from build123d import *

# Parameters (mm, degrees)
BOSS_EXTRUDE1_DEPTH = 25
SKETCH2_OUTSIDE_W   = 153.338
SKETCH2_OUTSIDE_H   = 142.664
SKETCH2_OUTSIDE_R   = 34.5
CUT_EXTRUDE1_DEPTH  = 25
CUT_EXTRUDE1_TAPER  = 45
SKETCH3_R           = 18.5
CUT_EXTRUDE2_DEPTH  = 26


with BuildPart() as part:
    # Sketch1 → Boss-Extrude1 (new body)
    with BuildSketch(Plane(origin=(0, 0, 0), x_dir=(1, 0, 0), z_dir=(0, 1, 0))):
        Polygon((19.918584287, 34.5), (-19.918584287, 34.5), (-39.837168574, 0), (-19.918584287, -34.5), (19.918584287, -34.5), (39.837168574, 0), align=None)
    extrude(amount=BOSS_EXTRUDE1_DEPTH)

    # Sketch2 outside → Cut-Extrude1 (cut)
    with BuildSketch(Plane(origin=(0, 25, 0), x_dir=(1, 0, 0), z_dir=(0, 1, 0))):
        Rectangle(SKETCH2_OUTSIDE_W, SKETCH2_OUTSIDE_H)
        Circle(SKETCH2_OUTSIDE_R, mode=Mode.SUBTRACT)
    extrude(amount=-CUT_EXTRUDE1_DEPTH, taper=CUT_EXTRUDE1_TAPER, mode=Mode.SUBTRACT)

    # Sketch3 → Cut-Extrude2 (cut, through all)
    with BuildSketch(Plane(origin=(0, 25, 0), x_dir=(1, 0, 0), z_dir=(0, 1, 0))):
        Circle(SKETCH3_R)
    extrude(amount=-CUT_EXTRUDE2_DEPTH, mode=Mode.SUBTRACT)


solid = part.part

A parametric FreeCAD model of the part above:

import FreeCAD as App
import Part
import Sketcher
from FreeCAD import Vector
Q = App.Units.Quantity

doc = App.newDocument("Part")
body = doc.addObject("PartDesign::Body", "Body")

# Sketch on XZ plane
sketch1 = body.newObject("Sketcher::SketchObject", "Sketch")
sketch1.AttachmentSupport = (doc.getObject("XZ_Plane"), [""])
sketch1.MapMode = "FlatFace"
sketch1.addGeometry(Part.LineSegment(Vector(20, -34, 0), Vector(-20, -34, 0)), False)
sketch1.addGeometry(Part.LineSegment(Vector(-20, -34, 0), Vector(-40, 0, 0)), False)
sketch1.addGeometry(Part.LineSegment(Vector(-40, 0, 0), Vector(-20, 34, 0)), False)
sketch1.addGeometry(Part.LineSegment(Vector(-20, 34, 0), Vector(20, 34, 0)), False)
sketch1.addGeometry(Part.LineSegment(Vector(20, 34, 0), Vector(40, 0, 0)), False)
sketch1.addGeometry(Part.LineSegment(Vector(40, 0, 0), Vector(20, -34, 0)), False)
sketch1.addConstraint(Sketcher.Constraint("Coincident", 0, 2, 1, 1))
sketch1.addConstraint(Sketcher.Constraint("Coincident", 1, 2, 2, 1))
sketch1.addConstraint(Sketcher.Constraint("Coincident", 2, 2, 3, 1))
sketch1.addConstraint(Sketcher.Constraint("Coincident", 3, 2, 4, 1))
sketch1.addConstraint(Sketcher.Constraint("Coincident", 4, 2, 5, 1))
sketch1.addConstraint(Sketcher.Constraint("Coincident", 5, 2, 0, 1))
sketch1.addConstraint(Sketcher.Constraint("Horizontal", 0))
sketch1.addConstraint(Sketcher.Constraint("Horizontal", 3))
sketch1.addConstraint(Sketcher.Constraint("Symmetric", 0, 2, 3, 2, -1, 1))
sketch1.addConstraint(Sketcher.Constraint("Symmetric", 1, 2, 4, 2, -1, 1))
sketch1.addConstraint(Sketcher.Constraint("PointOnObject", 1, 2, -1))
sketch1.addConstraint(Sketcher.Constraint("Parallel", 2, 5))
sketch1.addConstraint(Sketcher.Constraint("Vertical", 0, 2, 2, 2))
sketch1.addConstraint(Sketcher.Constraint("Angle", 1, Q("120 deg")))
sketch1.addConstraint(Sketcher.Constraint("DistanceY", 0, 2, 2, 2, Q("69 mm")))
sketch1.addConstraint(Sketcher.Constraint("DistanceX", 0, 2, 0, 1, Q("39.837169 mm")))
pad1 = body.newObject("PartDesign::Pad", "Pad")
pad1.Profile = sketch1
pad1.Length = 25
pad1.Reversed = True

# Sketch on XZ plane
sketch2 = body.newObject("Sketcher::SketchObject", "Sketch001")
sketch2.AttachmentSupport = (doc.getObject("XZ_Plane"), [""])
sketch2.MapMode = "FlatFace"
sketch2.AttachmentOffset = App.Placement(Vector(0, 0, -25), App.Rotation())
sketch2.addGeometry(Part.LineSegment(Vector(-77, -71, 0), Vector(-77, 71, 0)), False)
sketch2.addGeometry(Part.LineSegment(Vector(-77, 71, 0), Vector(77, 71, 0)), False)
sketch2.addGeometry(Part.LineSegment(Vector(77, 71, 0), Vector(77, -71, 0)), False)
sketch2.addGeometry(Part.LineSegment(Vector(77, -71, 0), Vector(-77, -71, 0)), False)
sketch2.addGeometry(Part.Circle(Vector(0, 0, 0), Vector(0, 0, 1), 34), False)
sketch2.addConstraint(Sketcher.Constraint("Coincident", 0, 2, 1, 1))
sketch2.addConstraint(Sketcher.Constraint("Coincident", 1, 2, 2, 1))
sketch2.addConstraint(Sketcher.Constraint("Coincident", 2, 2, 3, 1))
sketch2.addConstraint(Sketcher.Constraint("Coincident", 3, 2, 0, 1))
sketch2.addConstraint(Sketcher.Constraint("Vertical", 0))
sketch2.addConstraint(Sketcher.Constraint("Horizontal", 1))
sketch2.addConstraint(Sketcher.Constraint("Vertical", 2))
sketch2.addConstraint(Sketcher.Constraint("Horizontal", 3))
sketch2.addConstraint(Sketcher.Constraint("Coincident", 4, 3, -1, 1))
sketch2.addConstraint(Sketcher.Constraint("Symmetric", 0, 2, 2, 2, -1, 1))
sketch2.addConstraint(Sketcher.Constraint("Diameter", 4, Q("69 mm")))
sketch2.addConstraint(Sketcher.Constraint("DistanceX", 1, 1, 1, 2, Q("153.338 mm")))
sketch2.addConstraint(Sketcher.Constraint("DistanceY", 0, 1, 0, 2, Q("142.664 mm")))
pocket1 = body.newObject("PartDesign::Pocket", "Pocket")
pocket1.Profile = sketch2
pocket1.Length = 25
pocket1.Reversed = True
pocket1.TaperAngle = 45

# Sketch on XZ plane
sketch3 = body.newObject("Sketcher::SketchObject", "Sketch002")
sketch3.AttachmentSupport = (doc.getObject("XZ_Plane"), [""])
sketch3.MapMode = "FlatFace"
sketch3.AttachmentOffset = App.Placement(Vector(0, 0, -25), App.Rotation())
sketch3.addGeometry(Part.Circle(Vector(0, 0, 0), Vector(0, 0, 1), 18), False)
sketch3.addConstraint(Sketcher.Constraint("Coincident", 0, 3, -1, 1))
sketch3.addConstraint(Sketcher.Constraint("Diameter", 0, Q("37 mm")))
pocket2 = body.newObject("PartDesign::Pocket", "Pocket001")
pocket2.Profile = sketch3
pocket2.Type = "ThroughAll"
pocket2.Reversed = True

doc.recompute()
